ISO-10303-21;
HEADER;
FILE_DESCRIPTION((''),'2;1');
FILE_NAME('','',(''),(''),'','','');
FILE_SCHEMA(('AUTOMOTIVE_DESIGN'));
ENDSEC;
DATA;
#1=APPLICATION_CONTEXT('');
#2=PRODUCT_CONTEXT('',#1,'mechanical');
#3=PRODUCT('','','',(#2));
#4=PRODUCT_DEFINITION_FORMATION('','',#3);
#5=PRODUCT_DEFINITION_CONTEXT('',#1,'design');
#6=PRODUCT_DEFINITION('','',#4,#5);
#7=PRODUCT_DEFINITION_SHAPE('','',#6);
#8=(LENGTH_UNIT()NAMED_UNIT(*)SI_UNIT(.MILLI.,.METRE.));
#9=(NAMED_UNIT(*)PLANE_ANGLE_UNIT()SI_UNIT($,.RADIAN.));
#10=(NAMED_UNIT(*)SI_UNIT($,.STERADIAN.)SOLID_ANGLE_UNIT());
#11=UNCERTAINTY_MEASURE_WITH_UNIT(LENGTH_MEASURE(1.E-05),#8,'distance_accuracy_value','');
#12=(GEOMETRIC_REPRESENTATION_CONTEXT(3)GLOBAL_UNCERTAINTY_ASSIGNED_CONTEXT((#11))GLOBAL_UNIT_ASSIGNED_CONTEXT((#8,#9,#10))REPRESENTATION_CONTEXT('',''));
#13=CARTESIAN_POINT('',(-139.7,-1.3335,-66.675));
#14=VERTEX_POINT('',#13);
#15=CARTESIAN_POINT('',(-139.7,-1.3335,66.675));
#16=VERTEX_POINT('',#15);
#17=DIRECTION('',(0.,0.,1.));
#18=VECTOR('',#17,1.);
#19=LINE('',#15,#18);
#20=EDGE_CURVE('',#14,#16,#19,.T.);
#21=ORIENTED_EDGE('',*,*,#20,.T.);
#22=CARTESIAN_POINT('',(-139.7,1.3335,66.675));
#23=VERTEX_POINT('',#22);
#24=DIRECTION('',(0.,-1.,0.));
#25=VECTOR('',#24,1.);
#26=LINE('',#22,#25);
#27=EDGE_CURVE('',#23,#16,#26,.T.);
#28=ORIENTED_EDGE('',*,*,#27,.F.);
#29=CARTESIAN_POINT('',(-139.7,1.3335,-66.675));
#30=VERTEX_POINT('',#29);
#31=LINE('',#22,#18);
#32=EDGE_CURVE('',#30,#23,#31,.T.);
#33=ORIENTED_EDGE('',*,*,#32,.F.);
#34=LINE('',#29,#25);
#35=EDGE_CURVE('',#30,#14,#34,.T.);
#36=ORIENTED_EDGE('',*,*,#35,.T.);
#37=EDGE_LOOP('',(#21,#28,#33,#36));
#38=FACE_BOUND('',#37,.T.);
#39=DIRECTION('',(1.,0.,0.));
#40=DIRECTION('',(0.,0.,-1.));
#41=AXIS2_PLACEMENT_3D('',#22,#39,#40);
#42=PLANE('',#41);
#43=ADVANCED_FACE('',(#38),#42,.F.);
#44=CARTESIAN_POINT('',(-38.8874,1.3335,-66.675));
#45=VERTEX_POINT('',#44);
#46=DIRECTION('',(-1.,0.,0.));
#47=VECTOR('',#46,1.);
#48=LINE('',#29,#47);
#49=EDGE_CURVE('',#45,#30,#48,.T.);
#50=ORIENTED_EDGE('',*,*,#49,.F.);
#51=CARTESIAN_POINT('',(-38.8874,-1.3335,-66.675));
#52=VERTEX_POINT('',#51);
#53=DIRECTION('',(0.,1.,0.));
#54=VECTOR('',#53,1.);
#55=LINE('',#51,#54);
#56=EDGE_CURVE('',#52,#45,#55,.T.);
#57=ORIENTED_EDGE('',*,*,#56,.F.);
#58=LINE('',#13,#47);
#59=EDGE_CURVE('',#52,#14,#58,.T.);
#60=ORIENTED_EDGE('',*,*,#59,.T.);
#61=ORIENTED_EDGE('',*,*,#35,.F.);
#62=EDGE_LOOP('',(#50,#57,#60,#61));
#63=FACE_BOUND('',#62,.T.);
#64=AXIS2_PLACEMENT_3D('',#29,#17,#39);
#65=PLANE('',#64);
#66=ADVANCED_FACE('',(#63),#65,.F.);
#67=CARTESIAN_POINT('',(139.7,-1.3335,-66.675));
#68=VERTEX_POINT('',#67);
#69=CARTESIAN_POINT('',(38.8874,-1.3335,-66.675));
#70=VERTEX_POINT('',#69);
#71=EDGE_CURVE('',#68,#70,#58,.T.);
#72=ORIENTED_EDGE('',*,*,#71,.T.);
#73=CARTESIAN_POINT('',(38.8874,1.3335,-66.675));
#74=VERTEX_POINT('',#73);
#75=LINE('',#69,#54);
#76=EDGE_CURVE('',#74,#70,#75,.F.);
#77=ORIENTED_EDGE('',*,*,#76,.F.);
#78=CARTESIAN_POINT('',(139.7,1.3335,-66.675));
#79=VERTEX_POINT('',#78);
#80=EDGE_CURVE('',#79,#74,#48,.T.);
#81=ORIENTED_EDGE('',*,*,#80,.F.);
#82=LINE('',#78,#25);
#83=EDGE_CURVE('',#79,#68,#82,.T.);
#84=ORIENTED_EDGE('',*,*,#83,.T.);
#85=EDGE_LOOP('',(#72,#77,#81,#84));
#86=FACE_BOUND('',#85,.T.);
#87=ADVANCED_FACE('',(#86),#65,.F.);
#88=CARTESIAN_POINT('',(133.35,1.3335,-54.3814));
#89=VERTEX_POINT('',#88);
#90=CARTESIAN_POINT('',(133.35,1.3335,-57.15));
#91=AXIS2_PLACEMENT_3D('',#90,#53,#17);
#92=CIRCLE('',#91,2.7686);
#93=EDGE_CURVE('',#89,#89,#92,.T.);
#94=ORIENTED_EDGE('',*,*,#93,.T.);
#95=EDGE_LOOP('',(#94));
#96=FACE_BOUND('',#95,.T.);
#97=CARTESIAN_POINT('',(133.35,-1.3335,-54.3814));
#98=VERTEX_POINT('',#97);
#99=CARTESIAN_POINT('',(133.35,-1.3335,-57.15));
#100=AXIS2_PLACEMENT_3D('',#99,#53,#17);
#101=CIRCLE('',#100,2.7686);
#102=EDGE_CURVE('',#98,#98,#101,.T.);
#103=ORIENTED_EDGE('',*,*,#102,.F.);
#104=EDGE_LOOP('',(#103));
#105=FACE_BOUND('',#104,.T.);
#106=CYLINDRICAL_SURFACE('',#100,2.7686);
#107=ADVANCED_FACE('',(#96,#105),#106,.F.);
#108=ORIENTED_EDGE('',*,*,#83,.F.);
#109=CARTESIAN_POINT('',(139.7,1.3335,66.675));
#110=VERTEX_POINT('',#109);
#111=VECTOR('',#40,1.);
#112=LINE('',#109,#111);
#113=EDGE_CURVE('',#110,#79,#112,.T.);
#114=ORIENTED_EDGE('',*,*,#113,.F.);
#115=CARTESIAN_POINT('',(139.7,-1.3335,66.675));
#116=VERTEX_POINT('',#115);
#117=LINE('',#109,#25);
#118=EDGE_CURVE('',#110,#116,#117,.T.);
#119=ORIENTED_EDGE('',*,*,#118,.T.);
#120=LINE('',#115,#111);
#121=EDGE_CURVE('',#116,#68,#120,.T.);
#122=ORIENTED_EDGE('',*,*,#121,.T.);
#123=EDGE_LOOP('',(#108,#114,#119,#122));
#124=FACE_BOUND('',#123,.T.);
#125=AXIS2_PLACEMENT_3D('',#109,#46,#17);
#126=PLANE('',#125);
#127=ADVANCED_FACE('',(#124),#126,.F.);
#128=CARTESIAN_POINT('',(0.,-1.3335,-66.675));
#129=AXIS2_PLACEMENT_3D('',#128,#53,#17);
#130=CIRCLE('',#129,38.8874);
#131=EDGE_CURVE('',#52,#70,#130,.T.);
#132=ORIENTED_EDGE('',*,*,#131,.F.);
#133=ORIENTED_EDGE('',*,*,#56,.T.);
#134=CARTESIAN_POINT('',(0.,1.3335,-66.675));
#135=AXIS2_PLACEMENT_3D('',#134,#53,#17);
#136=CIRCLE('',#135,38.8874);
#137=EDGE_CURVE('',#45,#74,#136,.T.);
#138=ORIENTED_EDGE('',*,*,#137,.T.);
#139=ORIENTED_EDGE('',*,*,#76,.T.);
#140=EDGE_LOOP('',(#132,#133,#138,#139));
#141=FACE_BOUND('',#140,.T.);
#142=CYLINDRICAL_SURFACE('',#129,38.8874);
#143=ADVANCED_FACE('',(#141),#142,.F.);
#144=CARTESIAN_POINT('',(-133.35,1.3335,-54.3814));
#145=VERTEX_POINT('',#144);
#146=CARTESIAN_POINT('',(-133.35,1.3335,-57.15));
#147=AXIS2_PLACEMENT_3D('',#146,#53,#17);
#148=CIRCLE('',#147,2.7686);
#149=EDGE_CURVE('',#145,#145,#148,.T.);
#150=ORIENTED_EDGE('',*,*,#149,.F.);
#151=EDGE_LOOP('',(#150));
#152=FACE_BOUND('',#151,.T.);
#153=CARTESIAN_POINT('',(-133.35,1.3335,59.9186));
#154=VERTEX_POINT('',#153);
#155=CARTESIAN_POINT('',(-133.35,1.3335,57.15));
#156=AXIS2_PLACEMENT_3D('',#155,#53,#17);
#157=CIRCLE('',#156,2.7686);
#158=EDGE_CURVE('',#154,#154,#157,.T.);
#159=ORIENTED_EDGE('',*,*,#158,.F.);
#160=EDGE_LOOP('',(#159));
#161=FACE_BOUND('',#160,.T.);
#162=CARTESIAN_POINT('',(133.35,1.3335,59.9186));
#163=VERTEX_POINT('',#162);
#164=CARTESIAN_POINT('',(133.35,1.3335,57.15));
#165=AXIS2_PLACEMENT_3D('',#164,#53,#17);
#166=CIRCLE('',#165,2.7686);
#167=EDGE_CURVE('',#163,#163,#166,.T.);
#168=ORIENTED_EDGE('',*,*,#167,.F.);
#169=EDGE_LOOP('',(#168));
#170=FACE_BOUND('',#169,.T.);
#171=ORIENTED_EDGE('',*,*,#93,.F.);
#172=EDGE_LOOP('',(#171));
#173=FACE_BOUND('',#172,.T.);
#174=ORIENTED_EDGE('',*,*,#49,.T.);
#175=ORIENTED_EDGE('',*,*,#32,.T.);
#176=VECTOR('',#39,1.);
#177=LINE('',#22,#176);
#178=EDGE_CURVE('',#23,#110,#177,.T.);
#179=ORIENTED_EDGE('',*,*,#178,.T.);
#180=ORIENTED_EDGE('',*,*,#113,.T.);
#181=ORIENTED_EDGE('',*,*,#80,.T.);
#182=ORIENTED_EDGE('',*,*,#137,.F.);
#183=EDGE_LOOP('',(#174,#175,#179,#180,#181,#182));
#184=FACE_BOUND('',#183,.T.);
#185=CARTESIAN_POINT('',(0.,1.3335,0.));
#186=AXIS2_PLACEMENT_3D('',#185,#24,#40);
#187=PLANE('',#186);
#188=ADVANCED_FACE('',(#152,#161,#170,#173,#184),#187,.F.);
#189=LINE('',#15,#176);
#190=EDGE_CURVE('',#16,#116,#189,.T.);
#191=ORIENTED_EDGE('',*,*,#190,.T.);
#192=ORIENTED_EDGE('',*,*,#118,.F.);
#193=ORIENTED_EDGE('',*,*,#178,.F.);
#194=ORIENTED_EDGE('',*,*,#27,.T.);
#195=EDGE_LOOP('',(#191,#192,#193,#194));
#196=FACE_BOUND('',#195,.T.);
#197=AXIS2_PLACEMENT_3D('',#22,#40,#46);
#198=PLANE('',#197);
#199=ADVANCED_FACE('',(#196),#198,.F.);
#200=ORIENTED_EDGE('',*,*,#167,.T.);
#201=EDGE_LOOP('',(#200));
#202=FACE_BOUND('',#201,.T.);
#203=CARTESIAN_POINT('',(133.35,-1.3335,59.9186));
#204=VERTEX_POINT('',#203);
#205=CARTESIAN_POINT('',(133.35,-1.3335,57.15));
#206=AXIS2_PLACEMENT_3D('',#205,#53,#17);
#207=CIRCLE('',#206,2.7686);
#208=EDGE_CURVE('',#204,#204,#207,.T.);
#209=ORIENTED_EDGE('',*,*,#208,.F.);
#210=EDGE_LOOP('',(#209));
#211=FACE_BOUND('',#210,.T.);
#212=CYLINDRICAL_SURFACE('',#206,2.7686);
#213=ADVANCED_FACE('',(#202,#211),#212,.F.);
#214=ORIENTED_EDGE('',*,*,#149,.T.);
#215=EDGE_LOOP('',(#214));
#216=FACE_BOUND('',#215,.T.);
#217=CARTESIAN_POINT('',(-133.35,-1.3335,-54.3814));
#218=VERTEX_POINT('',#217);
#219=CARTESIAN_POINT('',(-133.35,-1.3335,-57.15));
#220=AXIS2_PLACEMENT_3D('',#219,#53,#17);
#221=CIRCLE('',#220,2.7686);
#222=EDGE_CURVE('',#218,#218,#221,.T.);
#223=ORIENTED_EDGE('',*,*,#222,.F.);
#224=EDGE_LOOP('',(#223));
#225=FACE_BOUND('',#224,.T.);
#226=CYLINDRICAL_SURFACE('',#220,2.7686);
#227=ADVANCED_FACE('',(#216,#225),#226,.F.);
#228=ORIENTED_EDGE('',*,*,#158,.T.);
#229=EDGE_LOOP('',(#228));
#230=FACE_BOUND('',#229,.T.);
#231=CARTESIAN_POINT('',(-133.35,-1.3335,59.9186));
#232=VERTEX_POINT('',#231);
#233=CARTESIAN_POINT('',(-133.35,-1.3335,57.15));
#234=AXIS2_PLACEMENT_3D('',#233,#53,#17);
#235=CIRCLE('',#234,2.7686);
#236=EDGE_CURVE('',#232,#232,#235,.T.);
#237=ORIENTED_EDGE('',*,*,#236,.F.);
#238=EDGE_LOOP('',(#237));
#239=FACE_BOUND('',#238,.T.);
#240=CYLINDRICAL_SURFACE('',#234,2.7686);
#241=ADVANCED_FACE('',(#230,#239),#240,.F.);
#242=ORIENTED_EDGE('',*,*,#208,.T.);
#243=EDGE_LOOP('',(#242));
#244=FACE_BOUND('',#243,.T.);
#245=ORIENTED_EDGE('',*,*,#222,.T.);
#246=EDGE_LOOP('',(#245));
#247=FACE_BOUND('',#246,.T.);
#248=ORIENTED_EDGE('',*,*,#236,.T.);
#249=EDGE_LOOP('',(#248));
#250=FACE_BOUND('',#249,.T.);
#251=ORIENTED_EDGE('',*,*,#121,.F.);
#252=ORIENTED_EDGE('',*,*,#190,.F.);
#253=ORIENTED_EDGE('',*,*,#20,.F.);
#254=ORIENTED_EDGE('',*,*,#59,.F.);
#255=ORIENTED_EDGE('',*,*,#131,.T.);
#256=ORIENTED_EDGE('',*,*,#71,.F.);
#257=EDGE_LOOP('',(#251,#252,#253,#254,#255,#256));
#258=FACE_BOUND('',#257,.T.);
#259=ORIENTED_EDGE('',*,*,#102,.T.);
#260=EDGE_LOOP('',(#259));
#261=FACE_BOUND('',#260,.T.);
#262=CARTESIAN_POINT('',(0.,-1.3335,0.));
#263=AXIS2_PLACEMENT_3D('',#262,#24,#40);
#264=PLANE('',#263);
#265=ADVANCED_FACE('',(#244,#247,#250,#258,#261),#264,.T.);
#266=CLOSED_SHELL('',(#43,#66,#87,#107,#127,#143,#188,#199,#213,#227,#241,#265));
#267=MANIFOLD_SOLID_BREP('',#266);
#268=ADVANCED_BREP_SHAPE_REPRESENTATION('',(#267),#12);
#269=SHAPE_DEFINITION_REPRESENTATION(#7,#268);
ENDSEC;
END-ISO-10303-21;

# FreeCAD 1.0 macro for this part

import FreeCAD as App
import Part
import Sketcher

V = App.Vector
Q = App.Units.Quantity


def add_polygon(sketch, points):
    """Adds a closed chain of lines whose ends are joined by coincident constraints."""
    first, n = sketch.GeometryCount, len(points)
    for a, b in zip(points, points[1:] + points[:1]):
        sketch.addGeometry(Part.LineSegment(App.Vector(*a, 0), App.Vector(*b, 0)), False)
    for i in range(n):
        sketch.addConstraint(Sketcher.Constraint("Coincident", first + i, 2, first + (i + 1) % n, 1))

doc = App.newDocument("Part")
body = doc.addObject("PartDesign::Body", "Body")

sketch1 = body.newObject("Sketcher::SketchObject", "Sketch")
sketch1.AttachmentSupport = (doc.getObject("XZ_Plane"), [""])
sketch1.MapMode = "FlatFace"
add_polygon(sketch1, [(-139.7, -66.675), (-139.7, 66.675), (139.7, 66.675), (139.7, -66.675)])
sketch1.addConstraint([
    Sketcher.Constraint("Vertical", 0),
    Sketcher.Constraint("Horizontal", 1),
    Sketcher.Constraint("Vertical", 2),
    Sketcher.Constraint("Horizontal", 3),
    Sketcher.Constraint("Symmetric", 0, 2, 2, 2, -1, 1),
    Sketcher.Constraint("DistanceX", 1, 1, 1, 2, Q("11 in")),
    Sketcher.Constraint("DistanceY", 0, 1, 0, 2, Q("5.25 in")),
])
pad1 = body.newObject("PartDesign::Pad", "Pad")
pad1.Profile = sketch1
pad1.Length = Q("0.105 in")
pad1.Midplane = True

sketch2 = body.newObject("Sketcher::SketchObject", "Sketch001")
sketch2.AttachmentSupport = (doc.getObject("XZ_Plane"), [""])
sketch2.MapMode = "FlatFace"
sketch2.AttachmentOffset = App.Placement(V(0, 0, -0.0525 * 25.4), App.Rotation())
sketch2.addGeometry(Part.Circle(V(0, -66.675, 0), V(0, 0, 1), 38.8874), False)
sketch2.addConstraint([
    Sketcher.Constraint("PointOnObject", 0, 3, -2),
    Sketcher.Constraint("Diameter", 0, Q("3.062 in")),
    Sketcher.Constraint("DistanceY", 0, 3, -1, 1, Q("2.625 in")),
])
pocket1 = body.newObject("PartDesign::Pocket", "Pocket")
pocket1.Profile = sketch2
pocket1.Type = "ThroughAll"
pocket1.Reversed = True

sketch3 = body.newObject("Sketcher::SketchObject", "Sketch002")
sketch3.AttachmentSupport = (doc.getObject("XZ_Plane"), [""])
sketch3.MapMode = "FlatFace"
sketch3.AttachmentOffset = App.Placement(V(0, 0, -0.0525 * 25.4), App.Rotation())
sketch3.addGeometry([
    Part.Circle(V(-133.35, 57.15, 0), V(0, 0, 1), 2.7686),
    Part.Circle(V(133.35, 57.15, 0), V(0, 0, 1), 2.7686),
    Part.Circle(V(-133.35, -57.15, 0), V(0, 0, 1), 2.7686),
    Part.Circle(V(133.35, -57.15, 0), V(0, 0, 1), 2.7686),
], False)
sketch3.addConstraint([
    Sketcher.Constraint("Equal", 0, 1),
    Sketcher.Constraint("Equal", 1, 2),
    Sketcher.Constraint("Equal", 2, 3),
    Sketcher.Constraint("Symmetric", 1, 3, 2, 3, -1, 1),
    Sketcher.Constraint("Symmetric", 0, 3, 3, 3, -1, 1),
    Sketcher.Constraint("Symmetric", 0, 3, 1, 3, -2),
    Sketcher.Constraint("Diameter", 0, Q("0.218 in")),
    Sketcher.Constraint("DistanceX", 0, 3, 1, 3, Q("10.5 in")),
    Sketcher.Constraint("DistanceY", 2, 3, 0, 3, Q("4.5 in")),
])
pocket2 = body.newObject("PartDesign::Pocket", "Pocket001")
pocket2.Profile = sketch3
pocket2.Type = "ThroughAll"
pocket2.Reversed = True

doc.recompute()
